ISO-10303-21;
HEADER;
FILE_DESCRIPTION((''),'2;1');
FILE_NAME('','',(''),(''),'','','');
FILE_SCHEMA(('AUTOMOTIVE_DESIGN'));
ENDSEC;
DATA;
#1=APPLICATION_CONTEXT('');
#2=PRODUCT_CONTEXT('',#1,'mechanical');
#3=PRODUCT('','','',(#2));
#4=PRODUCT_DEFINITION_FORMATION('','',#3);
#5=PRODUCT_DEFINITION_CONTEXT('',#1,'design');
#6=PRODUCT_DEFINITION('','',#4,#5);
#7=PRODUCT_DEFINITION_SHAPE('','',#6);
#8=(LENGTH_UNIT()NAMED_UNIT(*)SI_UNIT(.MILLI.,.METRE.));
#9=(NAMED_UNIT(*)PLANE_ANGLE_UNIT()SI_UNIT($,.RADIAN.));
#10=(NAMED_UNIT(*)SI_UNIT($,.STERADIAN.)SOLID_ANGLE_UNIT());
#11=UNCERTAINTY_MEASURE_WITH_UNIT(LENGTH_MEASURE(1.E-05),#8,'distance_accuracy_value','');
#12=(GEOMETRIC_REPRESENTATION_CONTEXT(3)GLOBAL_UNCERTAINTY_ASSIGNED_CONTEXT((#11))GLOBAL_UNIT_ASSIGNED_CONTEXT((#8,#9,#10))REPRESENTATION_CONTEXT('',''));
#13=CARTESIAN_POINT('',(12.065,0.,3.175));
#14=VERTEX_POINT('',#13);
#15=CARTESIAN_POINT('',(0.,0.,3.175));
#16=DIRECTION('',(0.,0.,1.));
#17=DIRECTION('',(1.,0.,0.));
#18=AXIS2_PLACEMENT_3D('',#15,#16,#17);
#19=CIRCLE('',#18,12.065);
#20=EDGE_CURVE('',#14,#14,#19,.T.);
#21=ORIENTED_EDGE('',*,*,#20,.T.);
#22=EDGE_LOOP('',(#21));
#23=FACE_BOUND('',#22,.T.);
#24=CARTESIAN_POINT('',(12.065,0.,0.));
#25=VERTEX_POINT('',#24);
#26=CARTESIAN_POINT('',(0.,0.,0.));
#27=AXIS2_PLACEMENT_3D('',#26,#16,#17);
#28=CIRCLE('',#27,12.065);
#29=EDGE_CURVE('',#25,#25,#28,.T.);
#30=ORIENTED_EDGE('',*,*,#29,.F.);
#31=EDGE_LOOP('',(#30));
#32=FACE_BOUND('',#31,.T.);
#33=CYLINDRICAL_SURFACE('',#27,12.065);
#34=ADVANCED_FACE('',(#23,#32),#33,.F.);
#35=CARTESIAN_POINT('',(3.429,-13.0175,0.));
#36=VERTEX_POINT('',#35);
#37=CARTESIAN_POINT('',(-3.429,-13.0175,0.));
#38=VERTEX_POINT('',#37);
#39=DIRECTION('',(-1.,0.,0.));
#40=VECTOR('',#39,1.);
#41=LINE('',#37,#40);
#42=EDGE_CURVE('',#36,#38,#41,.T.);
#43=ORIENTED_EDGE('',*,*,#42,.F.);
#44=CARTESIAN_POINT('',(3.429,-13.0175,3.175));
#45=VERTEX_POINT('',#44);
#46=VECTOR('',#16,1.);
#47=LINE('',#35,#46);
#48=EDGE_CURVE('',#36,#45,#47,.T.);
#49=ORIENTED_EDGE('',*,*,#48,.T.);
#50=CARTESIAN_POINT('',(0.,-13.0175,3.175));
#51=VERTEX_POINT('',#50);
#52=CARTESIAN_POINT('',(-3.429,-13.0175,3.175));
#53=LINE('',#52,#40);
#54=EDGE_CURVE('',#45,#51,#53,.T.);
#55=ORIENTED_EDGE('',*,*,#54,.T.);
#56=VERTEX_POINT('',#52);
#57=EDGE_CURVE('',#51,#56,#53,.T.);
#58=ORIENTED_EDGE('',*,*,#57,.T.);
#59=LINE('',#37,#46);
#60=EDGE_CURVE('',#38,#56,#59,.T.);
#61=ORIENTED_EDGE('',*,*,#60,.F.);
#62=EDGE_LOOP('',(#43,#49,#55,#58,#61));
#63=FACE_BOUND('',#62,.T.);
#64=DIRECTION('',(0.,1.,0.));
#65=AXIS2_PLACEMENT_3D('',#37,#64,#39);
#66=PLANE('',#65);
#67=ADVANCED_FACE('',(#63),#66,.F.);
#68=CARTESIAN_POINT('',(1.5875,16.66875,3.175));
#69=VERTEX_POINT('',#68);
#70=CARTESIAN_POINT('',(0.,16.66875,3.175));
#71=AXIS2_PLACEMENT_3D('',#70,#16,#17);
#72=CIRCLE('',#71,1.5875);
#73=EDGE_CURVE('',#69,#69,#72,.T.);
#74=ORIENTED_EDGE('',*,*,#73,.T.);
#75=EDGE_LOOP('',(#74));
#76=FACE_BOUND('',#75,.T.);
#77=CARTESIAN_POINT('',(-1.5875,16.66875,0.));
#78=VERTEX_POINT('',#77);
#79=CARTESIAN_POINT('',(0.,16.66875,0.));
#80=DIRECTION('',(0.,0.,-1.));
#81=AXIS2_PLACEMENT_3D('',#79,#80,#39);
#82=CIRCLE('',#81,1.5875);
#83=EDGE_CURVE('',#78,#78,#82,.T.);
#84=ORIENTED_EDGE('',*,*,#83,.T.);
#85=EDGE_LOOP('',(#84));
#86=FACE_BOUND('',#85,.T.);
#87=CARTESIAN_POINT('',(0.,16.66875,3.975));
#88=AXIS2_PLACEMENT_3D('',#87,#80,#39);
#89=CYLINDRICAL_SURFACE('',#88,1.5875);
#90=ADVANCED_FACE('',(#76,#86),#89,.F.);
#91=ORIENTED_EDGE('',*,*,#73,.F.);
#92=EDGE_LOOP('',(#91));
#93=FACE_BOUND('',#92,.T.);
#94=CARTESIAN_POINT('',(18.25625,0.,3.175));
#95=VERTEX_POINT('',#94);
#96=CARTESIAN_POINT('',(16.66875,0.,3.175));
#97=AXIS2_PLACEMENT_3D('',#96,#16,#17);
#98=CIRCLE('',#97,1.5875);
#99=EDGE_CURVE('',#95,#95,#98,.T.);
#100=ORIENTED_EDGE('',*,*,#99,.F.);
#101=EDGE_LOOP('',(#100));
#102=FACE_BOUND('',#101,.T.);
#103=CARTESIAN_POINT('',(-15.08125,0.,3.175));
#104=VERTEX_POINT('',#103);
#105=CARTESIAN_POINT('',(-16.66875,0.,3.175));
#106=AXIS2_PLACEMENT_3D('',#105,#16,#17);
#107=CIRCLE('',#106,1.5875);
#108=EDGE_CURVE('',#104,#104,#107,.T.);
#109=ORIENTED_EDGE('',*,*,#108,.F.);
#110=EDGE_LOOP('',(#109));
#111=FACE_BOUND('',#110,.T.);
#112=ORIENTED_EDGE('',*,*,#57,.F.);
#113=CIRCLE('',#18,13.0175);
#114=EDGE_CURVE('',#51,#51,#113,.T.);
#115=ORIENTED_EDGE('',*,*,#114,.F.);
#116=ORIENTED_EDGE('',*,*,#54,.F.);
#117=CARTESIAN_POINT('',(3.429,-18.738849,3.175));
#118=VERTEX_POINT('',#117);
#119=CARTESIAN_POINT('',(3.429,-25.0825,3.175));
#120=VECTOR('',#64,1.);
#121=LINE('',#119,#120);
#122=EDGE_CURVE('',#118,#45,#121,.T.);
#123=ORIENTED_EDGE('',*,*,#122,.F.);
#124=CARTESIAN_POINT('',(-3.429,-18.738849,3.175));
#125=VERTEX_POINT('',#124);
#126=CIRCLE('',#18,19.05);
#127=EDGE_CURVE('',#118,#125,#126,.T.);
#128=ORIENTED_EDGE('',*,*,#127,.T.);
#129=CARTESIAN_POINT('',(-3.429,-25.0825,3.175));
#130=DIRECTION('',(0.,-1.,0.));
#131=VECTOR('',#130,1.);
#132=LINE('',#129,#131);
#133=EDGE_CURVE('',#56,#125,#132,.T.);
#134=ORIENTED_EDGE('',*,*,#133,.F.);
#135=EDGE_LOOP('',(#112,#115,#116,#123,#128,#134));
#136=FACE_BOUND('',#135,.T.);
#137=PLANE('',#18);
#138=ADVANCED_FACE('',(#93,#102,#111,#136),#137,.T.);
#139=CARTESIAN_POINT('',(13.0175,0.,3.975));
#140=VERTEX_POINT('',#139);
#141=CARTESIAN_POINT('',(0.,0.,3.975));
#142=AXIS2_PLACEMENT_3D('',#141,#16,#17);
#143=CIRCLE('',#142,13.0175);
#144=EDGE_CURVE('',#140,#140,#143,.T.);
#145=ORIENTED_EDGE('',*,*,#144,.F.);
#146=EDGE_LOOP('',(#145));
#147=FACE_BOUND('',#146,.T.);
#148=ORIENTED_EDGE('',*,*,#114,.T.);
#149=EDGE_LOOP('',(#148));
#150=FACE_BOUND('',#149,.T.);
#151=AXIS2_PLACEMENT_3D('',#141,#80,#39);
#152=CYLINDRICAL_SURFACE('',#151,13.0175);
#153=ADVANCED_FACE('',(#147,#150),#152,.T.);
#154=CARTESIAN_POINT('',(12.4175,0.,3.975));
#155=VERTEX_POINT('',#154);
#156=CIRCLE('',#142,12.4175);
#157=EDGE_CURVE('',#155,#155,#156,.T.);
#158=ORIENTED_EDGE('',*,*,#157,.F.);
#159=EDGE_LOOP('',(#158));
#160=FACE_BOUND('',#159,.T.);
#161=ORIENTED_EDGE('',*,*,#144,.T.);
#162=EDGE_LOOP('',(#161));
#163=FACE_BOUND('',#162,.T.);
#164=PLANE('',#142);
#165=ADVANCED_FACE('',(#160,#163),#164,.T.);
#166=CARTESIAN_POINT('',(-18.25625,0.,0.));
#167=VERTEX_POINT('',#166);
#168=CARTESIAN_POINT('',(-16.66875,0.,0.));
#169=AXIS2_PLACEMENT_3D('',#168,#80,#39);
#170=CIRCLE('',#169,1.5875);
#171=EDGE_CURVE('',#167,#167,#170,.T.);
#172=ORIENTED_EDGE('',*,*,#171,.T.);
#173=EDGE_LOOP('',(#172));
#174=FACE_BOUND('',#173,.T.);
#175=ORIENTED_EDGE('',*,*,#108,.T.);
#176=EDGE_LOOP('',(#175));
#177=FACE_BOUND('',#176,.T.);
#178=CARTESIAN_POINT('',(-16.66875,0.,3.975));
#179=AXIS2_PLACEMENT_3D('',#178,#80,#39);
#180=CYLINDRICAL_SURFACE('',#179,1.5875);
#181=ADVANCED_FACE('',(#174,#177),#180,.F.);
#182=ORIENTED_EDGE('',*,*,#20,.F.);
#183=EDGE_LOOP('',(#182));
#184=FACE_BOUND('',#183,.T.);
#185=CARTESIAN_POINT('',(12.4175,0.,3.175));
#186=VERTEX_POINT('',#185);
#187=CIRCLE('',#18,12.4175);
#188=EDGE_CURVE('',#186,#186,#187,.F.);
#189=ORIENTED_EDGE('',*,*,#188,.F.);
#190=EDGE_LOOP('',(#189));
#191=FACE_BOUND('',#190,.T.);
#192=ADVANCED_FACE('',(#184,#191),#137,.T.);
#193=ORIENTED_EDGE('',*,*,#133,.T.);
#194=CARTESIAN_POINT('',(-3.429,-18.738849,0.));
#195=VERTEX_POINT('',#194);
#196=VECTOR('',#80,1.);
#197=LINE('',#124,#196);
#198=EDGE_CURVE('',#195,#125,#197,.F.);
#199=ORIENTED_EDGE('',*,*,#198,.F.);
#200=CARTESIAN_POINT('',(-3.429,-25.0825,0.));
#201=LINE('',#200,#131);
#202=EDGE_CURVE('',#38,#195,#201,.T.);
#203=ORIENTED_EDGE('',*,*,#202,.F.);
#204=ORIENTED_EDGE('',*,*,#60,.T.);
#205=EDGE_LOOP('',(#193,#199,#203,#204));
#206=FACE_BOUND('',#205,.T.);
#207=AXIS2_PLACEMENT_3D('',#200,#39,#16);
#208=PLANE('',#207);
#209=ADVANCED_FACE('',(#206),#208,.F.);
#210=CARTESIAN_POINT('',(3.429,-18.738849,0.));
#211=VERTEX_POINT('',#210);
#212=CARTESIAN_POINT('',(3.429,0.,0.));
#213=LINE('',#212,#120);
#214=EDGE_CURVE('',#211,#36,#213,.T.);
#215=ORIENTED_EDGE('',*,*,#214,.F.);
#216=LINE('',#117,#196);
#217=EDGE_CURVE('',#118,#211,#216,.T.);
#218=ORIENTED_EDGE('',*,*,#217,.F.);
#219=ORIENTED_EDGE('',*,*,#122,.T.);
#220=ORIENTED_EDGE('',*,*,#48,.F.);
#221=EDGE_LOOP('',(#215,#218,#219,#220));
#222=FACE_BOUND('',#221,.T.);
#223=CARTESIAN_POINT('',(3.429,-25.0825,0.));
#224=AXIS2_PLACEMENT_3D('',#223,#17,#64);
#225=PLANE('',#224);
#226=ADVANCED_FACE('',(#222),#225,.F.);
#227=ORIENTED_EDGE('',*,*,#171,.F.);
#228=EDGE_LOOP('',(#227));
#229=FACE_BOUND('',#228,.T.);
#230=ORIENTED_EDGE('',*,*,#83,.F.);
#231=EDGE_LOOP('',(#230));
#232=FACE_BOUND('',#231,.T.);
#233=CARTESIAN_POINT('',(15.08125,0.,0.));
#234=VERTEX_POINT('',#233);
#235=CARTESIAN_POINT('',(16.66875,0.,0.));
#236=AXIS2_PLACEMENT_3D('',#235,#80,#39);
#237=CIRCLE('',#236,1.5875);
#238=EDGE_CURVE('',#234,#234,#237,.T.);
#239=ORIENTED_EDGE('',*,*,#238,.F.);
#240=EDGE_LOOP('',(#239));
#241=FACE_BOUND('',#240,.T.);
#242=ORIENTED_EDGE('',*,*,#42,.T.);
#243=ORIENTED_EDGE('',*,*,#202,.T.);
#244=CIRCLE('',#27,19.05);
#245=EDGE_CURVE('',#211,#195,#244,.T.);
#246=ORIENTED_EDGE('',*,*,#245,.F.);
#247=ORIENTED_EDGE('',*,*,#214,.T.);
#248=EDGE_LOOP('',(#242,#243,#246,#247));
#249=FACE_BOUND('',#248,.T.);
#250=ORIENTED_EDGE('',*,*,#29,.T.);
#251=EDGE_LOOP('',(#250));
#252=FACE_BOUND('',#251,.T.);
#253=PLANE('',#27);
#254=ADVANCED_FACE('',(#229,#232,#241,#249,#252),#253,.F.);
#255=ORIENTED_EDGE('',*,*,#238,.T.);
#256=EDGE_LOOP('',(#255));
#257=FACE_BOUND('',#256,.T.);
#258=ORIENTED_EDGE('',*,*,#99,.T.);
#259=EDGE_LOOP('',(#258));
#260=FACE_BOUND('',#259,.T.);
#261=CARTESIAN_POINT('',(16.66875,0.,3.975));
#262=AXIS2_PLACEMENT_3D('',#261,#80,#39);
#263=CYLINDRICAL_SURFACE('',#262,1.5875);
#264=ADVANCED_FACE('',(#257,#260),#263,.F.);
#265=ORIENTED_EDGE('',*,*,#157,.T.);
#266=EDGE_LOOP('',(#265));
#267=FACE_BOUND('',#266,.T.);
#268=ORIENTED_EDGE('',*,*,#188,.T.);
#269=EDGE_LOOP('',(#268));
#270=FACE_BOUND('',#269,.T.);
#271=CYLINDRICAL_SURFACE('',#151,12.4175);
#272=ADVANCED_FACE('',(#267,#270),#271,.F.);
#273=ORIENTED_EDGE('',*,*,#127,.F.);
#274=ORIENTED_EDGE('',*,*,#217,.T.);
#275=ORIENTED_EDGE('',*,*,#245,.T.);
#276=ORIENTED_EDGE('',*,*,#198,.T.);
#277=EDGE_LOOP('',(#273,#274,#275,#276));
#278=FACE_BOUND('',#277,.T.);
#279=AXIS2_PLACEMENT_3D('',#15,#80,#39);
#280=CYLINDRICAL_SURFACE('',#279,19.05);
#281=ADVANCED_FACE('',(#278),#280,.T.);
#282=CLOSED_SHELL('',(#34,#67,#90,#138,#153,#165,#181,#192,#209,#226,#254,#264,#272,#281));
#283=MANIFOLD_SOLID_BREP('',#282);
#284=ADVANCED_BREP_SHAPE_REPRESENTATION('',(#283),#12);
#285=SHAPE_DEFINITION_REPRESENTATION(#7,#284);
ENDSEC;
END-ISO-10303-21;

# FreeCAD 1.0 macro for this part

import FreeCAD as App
import Part
import Sketcher
Q = App.Units.Quantity


def add_polygon(sketch, points):
    """Adds a closed chain of lines whose ends are joined by coincident constraints."""
    first, n = sketch.GeometryCount, len(points)
    for a, b in zip(points, points[1:] + points[:1]):
        sketch.addGeometry(Part.LineSegment(App.Vector(*a, 0), App.Vector(*b, 0)), False)
    for i in range(n):
        sketch.addConstraint(Sketcher.Constraint("Coincident", first + i, 2, first + (i + 1) % n, 1))

doc = App.newDocument("Part")
body = doc.addObject("PartDesign::Body", "Body")

# Sketch on XY plane
sketch1 = body.newObject("Sketcher::SketchObject", "Sketch")
sketch1.AttachmentSupport = (doc.getObject("XY_Plane"), [""])
sketch1.MapMode = "FlatFace"
sketch1.addGeometry(Part.Circle(App.Vector(0, 0, 0), App.Vector(0, 0, 1), 19), False)
sketch1.addConstraint(Sketcher.Constraint("Coincident", 0, 3, -1, 1))
sketch1.addConstraint(Sketcher.Constraint("Diameter", 0, Q("1.5 in")))
pad1 = body.newObject("PartDesign::Pad", "Pad")
pad1.Profile = sketch1
pad1.Length = Q("0.125 in")

# Sketch on XY plane
sketch2 = body.newObject("Sketcher::SketchObject", "Sketch001")
sketch2.AttachmentSupport = (doc.getObject("XY_Plane"), [""])
sketch2.MapMode = "FlatFace"
sketch2.AttachmentOffset = App.Placement(App.Vector(0, 0, 0.125 * 25.4), App.Rotation())
sketch2.addGeometry(Part.Circle(App.Vector(0, 0, 0), App.Vector(0, 0, 1), 12), False)
sketch2.addConstraint(Sketcher.Constraint("Coincident", 0, 3, -1, 1))
sketch2.addConstraint(Sketcher.Constraint("Diameter", 0, Q("0.95 in")))
pocket1 = body.newObject("PartDesign::Pocket", "Pocket")
pocket1.Profile = sketch2
pocket1.Type = "ThroughAll"

# Sketch on XY plane
sketch3 = body.newObject("Sketcher::SketchObject", "Sketch002")
sketch3.AttachmentSupport = (doc.getObject("XY_Plane"), [""])
sketch3.MapMode = "FlatFace"
sketch3.AttachmentOffset = App.Placement(App.Vector(0, 0, 0.125 * 25.4), App.Rotation())
sketch3.addGeometry(Part.Circle(App.Vector(0, 0, 0), App.Vector(0, 0, 1), 13), False)
sketch3.addGeometry(Part.Circle(App.Vector(0, 0, 0), App.Vector(0, 0, 1), 12), False)
sketch3.addConstraint(Sketcher.Constraint("Coincident", 0, 3, -1, 1))
sketch3.addConstraint(Sketcher.Constraint("Coincident", 1, 3, -1, 1))
sketch3.addConstraint(Sketcher.Constraint("Diameter", 0, Q("1.025 in")))
sketch3.addConstraint(Sketcher.Constraint("Diameter", 1, Q("24.835 mm")))
pad2 = body.newObject("PartDesign::Pad", "Pad001")
pad2.Profile = sketch3
pad2.Length = 0.8

# Sketch on XY plane
sketch4 = body.newObject("Sketcher::SketchObject", "Sketch003")
sketch4.AttachmentSupport = (doc.getObject("XY_Plane"), [""])
sketch4.MapMode = "FlatFace"
sketch4.AttachmentOffset = App.Placement(App.Vector(0, 0, 0.125 * 25.4), App.Rotation())
add_polygon(sketch4, [(-3, -13), (-3, -25), (3, -25), (3, -13)])  # lines 0-3
sketch4.addConstraint(Sketcher.Constraint("Vertical", 0))
sketch4.addConstraint(Sketcher.Constraint("Horizontal", 1))
sketch4.addConstraint(Sketcher.Constraint("Vertical", 2))
sketch4.addConstraint(Sketcher.Constraint("Horizontal", 3))
sketch4.addConstraint(Sketcher.Constraint("DistanceX", 1, 1, 1, 2, Q("0.27 in")))
sketch4.addConstraint(Sketcher.Constraint("DistanceY", 0, 2, 0, 1, Q("0.475 in")))
sketch4.addConstraint(Sketcher.Constraint("DistanceX", 0, 2, -1, 1, Q("0.135 in")))
sketch4.addConstraint(Sketcher.Constraint("DistanceY", 0, 2, -1, 1, Q("0.9875 in")))
pocket2 = body.newObject("PartDesign::Pocket", "Pocket001")
pocket2.Profile = sketch4
pocket2.Type = "ThroughAll"

# Sketch on XY plane
sketch5 = body.newObject("Sketcher::SketchObject", "Sketch004")
sketch5.AttachmentSupport = (doc.getObject("XY_Plane"), [""])
sketch5.MapMode = "FlatFace"
sketch5.addGeometry(Part.Circle(App.Vector(16.7, 0, 0), App.Vector(0, 0, 1), 1.6), False)
sketch5.addGeometry(Part.Circle(App.Vector(0, 16.7, 0), App.Vector(0, 0, 1), 1.6), False)
sketch5.addGeometry(Part.Circle(App.Vector(-16.7, 0, 0), App.Vector(0, 0, 1), 1.6), False)
sketch5.addConstraint(Sketcher.Constraint("Equal", 0, 1))
sketch5.addConstraint(Sketcher.Constraint("Equal", 1, 2))
sketch5.addConstraint(Sketcher.Constraint("Symmetric", 0, 3, 2, 3, -1, 1))
sketch5.addConstraint(Sketcher.Constraint("PointOnObject", 0, 3, -1))
sketch5.addConstraint(Sketcher.Constraint("PointOnObject", 1, 3, -2))
sketch5.addConstraint(Sketcher.Constraint("Diameter", 0, Q("0.125 in")))
sketch5.addConstraint(Sketcher.Constraint("DistanceX", -1, 1, 0, 3, Q("0.65625 in")))
sketch5.addConstraint(Sketcher.Constraint("DistanceY", -1, 1, 1, 3, Q("0.65625 in")))
pocket3 = body.newObject("PartDesign::Pocket", "Pocket002")
pocket3.Profile = sketch5
pocket3.Type = "ThroughAll"
pocket3.Reversed = True

doc.recompute()
